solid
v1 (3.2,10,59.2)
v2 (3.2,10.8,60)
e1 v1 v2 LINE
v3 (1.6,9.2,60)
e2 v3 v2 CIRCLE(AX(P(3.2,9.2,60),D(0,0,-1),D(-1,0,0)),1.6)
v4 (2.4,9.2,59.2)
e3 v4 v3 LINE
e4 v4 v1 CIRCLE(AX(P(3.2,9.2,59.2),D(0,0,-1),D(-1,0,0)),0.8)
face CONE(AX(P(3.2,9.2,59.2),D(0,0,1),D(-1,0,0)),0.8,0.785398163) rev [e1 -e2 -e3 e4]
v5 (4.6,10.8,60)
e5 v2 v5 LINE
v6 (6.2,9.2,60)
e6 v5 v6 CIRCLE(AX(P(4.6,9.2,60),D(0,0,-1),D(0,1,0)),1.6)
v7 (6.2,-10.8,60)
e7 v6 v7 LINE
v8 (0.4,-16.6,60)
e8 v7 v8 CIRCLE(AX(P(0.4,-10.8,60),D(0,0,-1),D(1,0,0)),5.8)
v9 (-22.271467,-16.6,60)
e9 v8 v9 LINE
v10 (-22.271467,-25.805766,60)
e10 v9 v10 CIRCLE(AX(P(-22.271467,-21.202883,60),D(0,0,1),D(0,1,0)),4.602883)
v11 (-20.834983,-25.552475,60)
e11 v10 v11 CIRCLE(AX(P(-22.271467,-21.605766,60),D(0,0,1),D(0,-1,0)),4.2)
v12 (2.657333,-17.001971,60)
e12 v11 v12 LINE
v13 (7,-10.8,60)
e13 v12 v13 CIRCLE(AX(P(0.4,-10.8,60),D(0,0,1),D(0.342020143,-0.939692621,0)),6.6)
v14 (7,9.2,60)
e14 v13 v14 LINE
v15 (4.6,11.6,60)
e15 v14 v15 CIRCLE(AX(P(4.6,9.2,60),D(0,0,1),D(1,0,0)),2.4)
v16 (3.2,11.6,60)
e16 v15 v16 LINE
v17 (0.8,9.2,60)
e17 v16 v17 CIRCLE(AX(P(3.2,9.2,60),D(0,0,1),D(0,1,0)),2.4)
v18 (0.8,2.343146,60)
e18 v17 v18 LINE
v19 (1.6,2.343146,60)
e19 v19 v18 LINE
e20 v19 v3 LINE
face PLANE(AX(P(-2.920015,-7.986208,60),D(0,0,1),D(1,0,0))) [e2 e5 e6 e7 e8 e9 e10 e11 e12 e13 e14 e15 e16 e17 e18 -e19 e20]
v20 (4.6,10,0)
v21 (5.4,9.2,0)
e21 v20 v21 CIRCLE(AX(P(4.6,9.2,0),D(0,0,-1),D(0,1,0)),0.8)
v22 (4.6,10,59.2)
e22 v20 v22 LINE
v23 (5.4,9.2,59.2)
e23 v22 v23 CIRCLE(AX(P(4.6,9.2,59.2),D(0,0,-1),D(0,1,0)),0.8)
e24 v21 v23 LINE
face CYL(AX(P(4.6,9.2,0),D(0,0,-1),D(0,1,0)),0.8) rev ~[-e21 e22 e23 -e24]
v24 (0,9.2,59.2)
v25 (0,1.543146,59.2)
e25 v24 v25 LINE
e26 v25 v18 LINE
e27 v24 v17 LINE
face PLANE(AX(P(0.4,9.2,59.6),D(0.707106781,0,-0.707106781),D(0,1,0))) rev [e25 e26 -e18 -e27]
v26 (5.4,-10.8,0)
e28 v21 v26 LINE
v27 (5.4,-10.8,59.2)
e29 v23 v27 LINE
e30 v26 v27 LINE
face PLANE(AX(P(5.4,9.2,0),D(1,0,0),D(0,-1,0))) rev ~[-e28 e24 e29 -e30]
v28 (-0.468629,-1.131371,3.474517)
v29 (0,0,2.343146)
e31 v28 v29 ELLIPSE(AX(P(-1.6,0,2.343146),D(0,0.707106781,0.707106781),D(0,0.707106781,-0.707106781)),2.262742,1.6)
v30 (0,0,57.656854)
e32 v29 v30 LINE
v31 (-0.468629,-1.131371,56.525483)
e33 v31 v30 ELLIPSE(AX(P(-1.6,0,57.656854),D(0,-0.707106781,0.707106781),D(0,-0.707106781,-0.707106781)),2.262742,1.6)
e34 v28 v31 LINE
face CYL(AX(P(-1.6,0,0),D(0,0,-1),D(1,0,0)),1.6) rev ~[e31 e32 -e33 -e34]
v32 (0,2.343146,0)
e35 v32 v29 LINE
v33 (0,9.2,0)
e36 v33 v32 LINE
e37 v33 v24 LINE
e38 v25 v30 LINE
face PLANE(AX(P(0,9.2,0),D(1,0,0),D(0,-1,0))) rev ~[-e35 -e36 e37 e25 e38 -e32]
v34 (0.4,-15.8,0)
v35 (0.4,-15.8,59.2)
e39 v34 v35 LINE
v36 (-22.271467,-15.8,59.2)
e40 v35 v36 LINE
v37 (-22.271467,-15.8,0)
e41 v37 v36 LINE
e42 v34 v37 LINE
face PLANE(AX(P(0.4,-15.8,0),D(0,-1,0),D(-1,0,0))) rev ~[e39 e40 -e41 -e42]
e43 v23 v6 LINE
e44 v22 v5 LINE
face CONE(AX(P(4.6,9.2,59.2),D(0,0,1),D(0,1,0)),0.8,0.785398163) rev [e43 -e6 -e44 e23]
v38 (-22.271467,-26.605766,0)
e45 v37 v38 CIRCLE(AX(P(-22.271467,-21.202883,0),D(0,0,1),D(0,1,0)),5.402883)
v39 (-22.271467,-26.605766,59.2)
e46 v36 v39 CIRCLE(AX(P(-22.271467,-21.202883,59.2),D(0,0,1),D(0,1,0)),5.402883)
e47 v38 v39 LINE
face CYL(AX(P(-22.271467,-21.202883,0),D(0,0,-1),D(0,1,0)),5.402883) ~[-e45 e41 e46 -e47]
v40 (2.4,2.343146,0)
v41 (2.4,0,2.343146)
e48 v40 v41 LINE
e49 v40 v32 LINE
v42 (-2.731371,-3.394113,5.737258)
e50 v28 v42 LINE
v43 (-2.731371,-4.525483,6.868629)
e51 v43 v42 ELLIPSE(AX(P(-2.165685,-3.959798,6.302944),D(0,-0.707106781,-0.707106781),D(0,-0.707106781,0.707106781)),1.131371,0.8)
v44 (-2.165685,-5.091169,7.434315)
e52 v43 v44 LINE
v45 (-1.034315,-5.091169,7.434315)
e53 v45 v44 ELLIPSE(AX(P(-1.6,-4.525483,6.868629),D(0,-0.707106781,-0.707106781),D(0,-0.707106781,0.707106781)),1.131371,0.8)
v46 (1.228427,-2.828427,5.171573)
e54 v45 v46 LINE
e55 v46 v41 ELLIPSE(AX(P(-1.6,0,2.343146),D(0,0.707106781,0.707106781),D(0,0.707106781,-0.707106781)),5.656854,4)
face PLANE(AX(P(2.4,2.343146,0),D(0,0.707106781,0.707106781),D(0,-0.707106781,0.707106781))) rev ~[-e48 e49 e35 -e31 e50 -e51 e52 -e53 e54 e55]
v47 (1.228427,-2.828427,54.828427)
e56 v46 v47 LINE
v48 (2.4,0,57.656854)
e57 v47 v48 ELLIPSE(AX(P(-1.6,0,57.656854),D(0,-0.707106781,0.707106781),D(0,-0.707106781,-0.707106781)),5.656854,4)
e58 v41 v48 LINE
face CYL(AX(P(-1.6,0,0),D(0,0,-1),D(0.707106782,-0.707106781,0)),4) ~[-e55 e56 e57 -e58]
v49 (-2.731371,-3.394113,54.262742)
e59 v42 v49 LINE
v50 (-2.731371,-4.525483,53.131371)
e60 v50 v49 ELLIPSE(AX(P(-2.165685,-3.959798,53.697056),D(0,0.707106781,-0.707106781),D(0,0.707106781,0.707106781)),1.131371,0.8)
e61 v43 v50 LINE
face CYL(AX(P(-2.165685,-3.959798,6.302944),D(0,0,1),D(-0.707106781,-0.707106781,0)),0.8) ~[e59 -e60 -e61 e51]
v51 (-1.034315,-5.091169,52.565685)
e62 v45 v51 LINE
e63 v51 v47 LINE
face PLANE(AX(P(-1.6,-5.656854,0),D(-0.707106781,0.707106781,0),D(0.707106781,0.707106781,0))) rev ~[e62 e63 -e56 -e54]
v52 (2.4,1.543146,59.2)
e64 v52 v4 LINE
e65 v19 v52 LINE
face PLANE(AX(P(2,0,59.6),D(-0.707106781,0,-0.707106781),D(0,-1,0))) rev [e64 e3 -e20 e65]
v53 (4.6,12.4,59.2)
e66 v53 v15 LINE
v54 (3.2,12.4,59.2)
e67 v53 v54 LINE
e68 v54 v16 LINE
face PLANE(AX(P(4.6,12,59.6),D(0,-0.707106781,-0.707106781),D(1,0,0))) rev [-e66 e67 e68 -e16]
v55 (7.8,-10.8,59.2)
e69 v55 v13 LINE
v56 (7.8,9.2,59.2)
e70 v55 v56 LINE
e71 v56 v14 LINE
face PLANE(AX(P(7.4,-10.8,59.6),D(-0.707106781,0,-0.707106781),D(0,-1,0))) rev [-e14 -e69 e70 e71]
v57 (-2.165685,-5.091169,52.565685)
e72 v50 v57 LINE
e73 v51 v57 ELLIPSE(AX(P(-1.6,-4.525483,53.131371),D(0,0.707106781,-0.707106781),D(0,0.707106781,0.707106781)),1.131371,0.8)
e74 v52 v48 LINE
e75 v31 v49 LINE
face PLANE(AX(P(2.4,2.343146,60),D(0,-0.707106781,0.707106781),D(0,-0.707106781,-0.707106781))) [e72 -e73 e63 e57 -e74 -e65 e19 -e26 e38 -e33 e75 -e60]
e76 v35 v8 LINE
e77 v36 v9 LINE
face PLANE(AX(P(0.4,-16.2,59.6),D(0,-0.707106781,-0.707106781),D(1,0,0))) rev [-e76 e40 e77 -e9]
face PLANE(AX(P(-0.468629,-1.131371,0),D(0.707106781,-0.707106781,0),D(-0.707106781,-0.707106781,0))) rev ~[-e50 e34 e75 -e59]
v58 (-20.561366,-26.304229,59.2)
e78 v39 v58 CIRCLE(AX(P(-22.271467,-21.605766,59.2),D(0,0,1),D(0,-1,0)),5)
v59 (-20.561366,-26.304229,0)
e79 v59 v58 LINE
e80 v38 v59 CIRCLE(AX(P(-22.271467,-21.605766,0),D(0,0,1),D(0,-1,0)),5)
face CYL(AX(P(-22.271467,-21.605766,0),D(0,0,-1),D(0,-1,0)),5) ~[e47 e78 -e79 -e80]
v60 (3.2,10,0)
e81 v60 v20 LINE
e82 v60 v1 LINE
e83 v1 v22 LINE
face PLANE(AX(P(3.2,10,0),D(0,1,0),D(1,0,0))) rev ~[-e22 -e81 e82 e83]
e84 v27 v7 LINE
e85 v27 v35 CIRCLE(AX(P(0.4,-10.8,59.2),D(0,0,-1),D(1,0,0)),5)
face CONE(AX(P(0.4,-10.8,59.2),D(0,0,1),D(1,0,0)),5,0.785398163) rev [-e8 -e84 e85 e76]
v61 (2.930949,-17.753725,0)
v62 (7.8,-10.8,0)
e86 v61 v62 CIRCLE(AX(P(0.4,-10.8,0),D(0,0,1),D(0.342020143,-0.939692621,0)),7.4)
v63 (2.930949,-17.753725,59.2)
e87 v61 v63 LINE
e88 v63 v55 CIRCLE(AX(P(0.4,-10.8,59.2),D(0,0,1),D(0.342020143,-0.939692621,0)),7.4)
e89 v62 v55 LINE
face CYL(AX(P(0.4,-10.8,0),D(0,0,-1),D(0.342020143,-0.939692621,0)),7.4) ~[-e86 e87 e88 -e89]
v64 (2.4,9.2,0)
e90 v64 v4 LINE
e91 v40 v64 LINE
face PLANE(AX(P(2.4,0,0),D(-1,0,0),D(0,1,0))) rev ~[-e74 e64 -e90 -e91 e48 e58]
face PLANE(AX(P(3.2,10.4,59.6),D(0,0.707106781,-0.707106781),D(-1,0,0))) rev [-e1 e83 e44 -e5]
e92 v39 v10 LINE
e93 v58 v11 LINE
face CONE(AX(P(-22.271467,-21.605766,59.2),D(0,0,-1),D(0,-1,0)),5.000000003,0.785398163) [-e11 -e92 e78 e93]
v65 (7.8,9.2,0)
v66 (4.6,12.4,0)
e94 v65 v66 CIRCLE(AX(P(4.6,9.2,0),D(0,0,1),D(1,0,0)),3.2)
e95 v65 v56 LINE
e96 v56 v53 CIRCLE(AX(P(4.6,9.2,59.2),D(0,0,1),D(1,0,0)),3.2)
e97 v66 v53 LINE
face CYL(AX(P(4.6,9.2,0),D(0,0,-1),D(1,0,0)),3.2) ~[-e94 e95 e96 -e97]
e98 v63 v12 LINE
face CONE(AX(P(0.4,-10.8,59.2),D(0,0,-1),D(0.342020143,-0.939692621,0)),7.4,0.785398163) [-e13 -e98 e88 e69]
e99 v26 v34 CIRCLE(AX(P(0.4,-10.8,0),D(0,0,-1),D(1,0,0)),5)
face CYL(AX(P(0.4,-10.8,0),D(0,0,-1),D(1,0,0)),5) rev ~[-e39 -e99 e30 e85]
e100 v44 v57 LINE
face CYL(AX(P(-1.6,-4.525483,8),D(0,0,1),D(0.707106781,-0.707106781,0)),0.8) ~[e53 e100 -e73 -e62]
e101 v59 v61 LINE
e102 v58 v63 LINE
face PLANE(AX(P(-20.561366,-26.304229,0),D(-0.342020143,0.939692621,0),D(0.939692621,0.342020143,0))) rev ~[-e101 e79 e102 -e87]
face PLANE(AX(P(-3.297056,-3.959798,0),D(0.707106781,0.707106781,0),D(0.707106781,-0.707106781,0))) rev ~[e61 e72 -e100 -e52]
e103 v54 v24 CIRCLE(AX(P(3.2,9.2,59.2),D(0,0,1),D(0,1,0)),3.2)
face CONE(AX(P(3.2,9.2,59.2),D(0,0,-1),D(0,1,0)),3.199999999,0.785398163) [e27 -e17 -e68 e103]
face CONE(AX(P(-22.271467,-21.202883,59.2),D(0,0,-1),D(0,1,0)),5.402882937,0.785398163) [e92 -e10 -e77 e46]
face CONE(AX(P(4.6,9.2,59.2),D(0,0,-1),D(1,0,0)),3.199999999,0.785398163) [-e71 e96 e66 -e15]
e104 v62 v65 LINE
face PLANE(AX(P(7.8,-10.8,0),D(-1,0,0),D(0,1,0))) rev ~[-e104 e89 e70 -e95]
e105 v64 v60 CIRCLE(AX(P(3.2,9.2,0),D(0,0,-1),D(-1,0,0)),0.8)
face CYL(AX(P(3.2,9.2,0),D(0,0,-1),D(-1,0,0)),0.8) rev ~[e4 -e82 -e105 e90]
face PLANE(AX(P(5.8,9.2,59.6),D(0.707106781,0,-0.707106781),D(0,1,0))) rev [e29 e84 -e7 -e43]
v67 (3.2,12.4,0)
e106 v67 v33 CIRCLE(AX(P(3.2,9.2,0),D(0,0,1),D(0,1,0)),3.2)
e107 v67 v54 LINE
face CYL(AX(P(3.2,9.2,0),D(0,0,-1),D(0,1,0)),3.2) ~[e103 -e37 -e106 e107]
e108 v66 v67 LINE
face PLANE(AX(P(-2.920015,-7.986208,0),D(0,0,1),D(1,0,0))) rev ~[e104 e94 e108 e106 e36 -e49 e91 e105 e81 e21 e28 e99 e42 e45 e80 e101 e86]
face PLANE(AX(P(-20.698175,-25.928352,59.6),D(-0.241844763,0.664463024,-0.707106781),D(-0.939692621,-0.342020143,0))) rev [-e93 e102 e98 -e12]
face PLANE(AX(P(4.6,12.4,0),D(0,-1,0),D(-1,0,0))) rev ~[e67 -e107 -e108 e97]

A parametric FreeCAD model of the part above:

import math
import FreeCAD as App
import Part
import Sketcher
Q = App.Units.Quantity


def edges_at(feature, points):
    """Names of the edges that pass closest to the given points."""
    edges = feature.Shape.Edges
    near = lambda p: min(range(len(edges)), key=lambda i: edges[i].distToShape(Part.Vertex(*p))[0])
    return sorted({f"Edge{near(p) + 1}" for p in points})


def add_polygon(sketch, points):
    """Adds a closed chain of lines whose ends are joined by coincident constraints."""
    first, n = sketch.GeometryCount, len(points)
    for a, b in zip(points, points[1:] + points[:1]):
        sketch.addGeometry(Part.LineSegment(App.Vector(*a, 0), App.Vector(*b, 0)), False)
    for i in range(n):
        sketch.addConstraint(Sketcher.Constraint("Coincident", first + i, 2, first + (i + 1) % n, 1))

doc = App.newDocument("Part")
body = doc.addObject("PartDesign::Body", "Body")

# Sketch on XY plane
sketch1 = body.newObject("Sketcher::SketchObject", "Sketch")
sketch1.AttachmentSupport = (doc.getObject("XY_Plane"), [""])
sketch1.MapMode = "FlatFace"
sketch1.addGeometry([
    Part.LineSegment(App.Vector(2.4, 0, 0), App.Vector(2.4, 9.2, 0)),  # 0
    Part.ArcOfCircle(Part.Circle(App.Vector(3.2, 9.2, 0), App.Vector(0, 0, 1), 0.8), math.radians(90), math.radians(180)),  # 1
    Part.LineSegment(App.Vector(3.2, 10, 0), App.Vector(4.6, 10, 0)),  # 2
    Part.ArcOfCircle(Part.Circle(App.Vector(4.6, 9.2, 0), App.Vector(0, 0, 1), 0.8), math.radians(0), math.radians(90)),  # 3
    Part.LineSegment(App.Vector(5.4, 9.2, 0), App.Vector(5.4, -10.8, 0)),  # 4
    Part.ArcOfCircle(Part.Circle(App.Vector(0.4, -10.8, 0), App.Vector(0, 0, 1), 5), math.radians(-90), math.radians(0)),  # 5
    Part.LineSegment(App.Vector(0.4, -15.8, 0), App.Vector(-22.271467, -15.8, 0)),  # 6
    Part.ArcOfCircle(Part.Circle(App.Vector(-22.271467, -21.202883, 0), App.Vector(0, 0, 1), 5.402883), math.radians(90), math.radians(270)),  # 7
    Part.ArcOfCircle(Part.Circle(App.Vector(-22.271467, -21.605766, 0), App.Vector(0, 0, 1), 5), math.radians(-90), math.radians(-70)),  # 8
    Part.LineSegment(App.Vector(-20.561366, -26.304229, 0), App.Vector(2.930949, -17.753725, 0)),  # 9
    Part.ArcOfCircle(Part.Circle(App.Vector(0.4, -10.8, 0), App.Vector(0, 0, 1), 7.4), math.radians(-70), math.radians(0)),  # 10
    Part.LineSegment(App.Vector(7.8, -10.8, 0), App.Vector(7.8, 9.2, 0)),  # 11
    Part.ArcOfCircle(Part.Circle(App.Vector(4.6, 9.2, 0), App.Vector(0, 0, 1), 3.2), math.radians(0), math.radians(90)),  # 12
    Part.LineSegment(App.Vector(4.6, 12.4, 0), App.Vector(3.2, 12.4, 0)),  # 13
    Part.ArcOfCircle(Part.Circle(App.Vector(3.2, 9.2, 0), App.Vector(0, 0, 1), 3.2), math.radians(90), math.radians(180)),  # 14
    Part.LineSegment(App.Vector(0, 9.2, 0), App.Vector(0, 0, 0)),  # 15
    Part.ArcOfCircle(Part.Circle(App.Vector(-1.6, 0, 0), App.Vector(0, 0, 1), 1.6), math.radians(-45), math.radians(0)),  # 16
    Part.LineSegment(App.Vector(-0.468629, -1.131371, 0), App.Vector(-3.297056, -3.959798, 0)),  # 17
    Part.LineSegment(App.Vector(-3.297056, -3.959798, 0), App.Vector(-1.6, -5.656854, 0)),  # 18
    Part.LineSegment(App.Vector(-1.6, -5.656854, 0), App.Vector(1.228427, -2.828427, 0)),  # 19
    Part.ArcOfCircle(Part.Circle(App.Vector(-1.6, 0, 0), App.Vector(0, 0, 1), 4), math.radians(-45), math.radians(0)),  # 20
], False)
sketch1.addConstraint([
    Sketcher.Constraint("Tangent", 0, 2, 1, 2),
    Sketcher.Constraint("Tangent", 1, 1, 2, 1),
    Sketcher.Constraint("Tangent", 2, 2, 3, 2),
    Sketcher.Constraint("Tangent", 3, 1, 4, 1),
    Sketcher.Constraint("Tangent", 4, 2, 5, 2),
    Sketcher.Constraint("Tangent", 5, 1, 6, 1),
    Sketcher.Constraint("Tangent", 6, 2, 7, 1),
    Sketcher.Constraint("Tangent", 7, 2, 8, 1),
    Sketcher.Constraint("Tangent", 8, 2, 9, 1),
    Sketcher.Constraint("Tangent", 9, 2, 10, 1),
    Sketcher.Constraint("Tangent", 10, 2, 11, 1),
    Sketcher.Constraint("Tangent", 11, 2, 12, 1),
    Sketcher.Constraint("Tangent", 12, 2, 13, 1),
    Sketcher.Constraint("Tangent", 13, 2, 14, 1),
    Sketcher.Constraint("Tangent", 14, 2, 15, 1),
    Sketcher.Constraint("Tangent", 15, 2, 16, 2),
    Sketcher.Constraint("Tangent", 16, 1, 17, 1),
    Sketcher.Constraint("Coincident", 17, 2, 18, 1),
    Sketcher.Constraint("Coincident", 18, 2, 19, 1),
    Sketcher.Constraint("Tangent", 19, 2, 20, 1),
    Sketcher.Constraint("Tangent", 20, 2, 0, 1),
    Sketcher.Constraint("Vertical", 0),
    Sketcher.Constraint("Horizontal", 2),
    Sketcher.Constraint("Vertical", 4),
    Sketcher.Constraint("Horizontal", 6),
    Sketcher.Constraint("Vertical", 11),
    Sketcher.Constraint("Horizontal", 13),
    Sketcher.Constraint("Vertical", 15),
    Sketcher.Constraint("Coincident", 15, 2, -1, 1),
    Sketcher.Constraint("Coincident", 10, 3, 5, 3),
    Sketcher.Constraint("Coincident", 12, 3, 3, 3),
    Sketcher.Constraint("Coincident", 14, 3, 1, 3),
    Sketcher.Constraint("Coincident", 20, 3, 16, 3),
    Sketcher.Constraint("Equal", 1, 3),
    Sketcher.Constraint("Equal", 5, 8),
    Sketcher.Constraint("Perpendicular", 17, 18),
    Sketcher.Constraint("Perpendicular", 18, 19),
    Sketcher.Constraint("Vertical", 7, 3, 8, 3),
    Sketcher.Constraint("Vertical", 20, 3, 18, 2),
    Sketcher.Constraint("Radius", 5, Q("5 mm")),
    Sketcher.Constraint("Radius", 20, Q("4 mm")),
    Sketcher.Constraint("Radius", 1, Q("0.8 mm")),
    Sketcher.Constraint("Radius", 10, Q("7.4 mm")),
    Sketcher.Constraint("DistanceY", 4, 2, 4, 1, Q("20 mm")),
    Sketcher.Constraint("Angle", 9, Q("20 deg")),
    Sketcher.Constraint("Angle", 17, Q("-135 deg")),
    Sketcher.Constraint("Distance", 9, Q("25 mm")),
    Sketcher.Constraint("DistanceX", 2, 1, 2, 2, Q("1.4 mm")),
    Sketcher.Constraint("DistanceY", 0, 1, 0, 2, Q("9.2 mm")),
])
pad1 = body.newObject("PartDesign::Pad", "Pad")
pad1.Profile = sketch1
pad1.Length = 60
doc.recompute()

chamfer = body.newObject("PartDesign::Chamfer", "Chamfer")
chamfer.Base = (pad1, edges_at(pad1, [
    (-0.186, -4.243, 60),
    (2.096, -1.531, 60),
    (2.4, 4.6, 60),
    (2.634, 9.766, 60),
    (3.9, 10, 60),
    (5.166, 9.766, 60),
    (5.4, -0.8, 60),
    (3.936, -14.336, 60),
    (-10.936, -15.8, 60),
    (-0.122, -0.612, 60),
    (-27.674, -21.203, 60),
    (-21.403, -26.53, 60),
    (-8.815, -22.029, 60),
    (6.462, -15.044, 60),
    (7.8, -0.8, 60),
    (6.863, 11.463, 60),
    (3.9, 12.4, 60),
    (0.937, 11.463, 60),
    (0, 4.6, 60),
    (-1.883, -2.546, 60),
]))
chamfer.Size = 0.8

# Sketch on YZ plane
sketch2 = body.newObject("Sketcher::SketchObject", "Sketch001")
sketch2.AttachmentSupport = (doc.getObject("YZ_Plane"), [""])
sketch2.MapMode = "FlatFace"
sketch2.AttachmentOffset = App.Placement(App.Vector(0, 0, 2.4), App.Rotation())
add_polygon(sketch2, [(-5.656854, 52), (2.343146, 60), (-5.656854, 60)])  # lines 0-2
add_polygon(sketch2, [(2.343146, 0), (-5.656854, 8), (-5.656854, 0)])  # lines 3-5
sketch2.addConstraint([
    Sketcher.Constraint("Horizontal", 1),
    Sketcher.Constraint("Vertical", 2),
    Sketcher.Constraint("Vertical", 4),
    Sketcher.Constraint("Horizontal", 5),
    Sketcher.Constraint("PointOnObject", 4, 2, -1),
    Sketcher.Constraint("Perpendicular", 0, 3),
    Sketcher.Constraint("Vertical", 2, 2, 3, 2),
    Sketcher.Constraint("Vertical", 0, 2, 5, 2),
    Sketcher.Constraint("Equal", 5, 2),
    Sketcher.Constraint("DistanceX", 1, 2, 1, 1, Q("8 mm")),
    Sketcher.Constraint("DistanceY", -1, 1, 0, 2, Q("60 mm")),
    Sketcher.Constraint("DistanceX", -1, 1, 0, 2, Q("2.343146 mm")),
])
pocket1 = body.newObject("PartDesign::Pocket", "Pocket")
pocket1.Profile = sketch2
pocket1.Type = "ThroughAll"
doc.recompute()

fillet = body.newObject("PartDesign::Fillet", "Fillet")
fillet.Base = (pocket1, edges_at(pocket1, [(-1.6, -5.657, 30), (-3.297, -3.96, 30)]))
fillet.Radius = 0.8

doc.recompute()
